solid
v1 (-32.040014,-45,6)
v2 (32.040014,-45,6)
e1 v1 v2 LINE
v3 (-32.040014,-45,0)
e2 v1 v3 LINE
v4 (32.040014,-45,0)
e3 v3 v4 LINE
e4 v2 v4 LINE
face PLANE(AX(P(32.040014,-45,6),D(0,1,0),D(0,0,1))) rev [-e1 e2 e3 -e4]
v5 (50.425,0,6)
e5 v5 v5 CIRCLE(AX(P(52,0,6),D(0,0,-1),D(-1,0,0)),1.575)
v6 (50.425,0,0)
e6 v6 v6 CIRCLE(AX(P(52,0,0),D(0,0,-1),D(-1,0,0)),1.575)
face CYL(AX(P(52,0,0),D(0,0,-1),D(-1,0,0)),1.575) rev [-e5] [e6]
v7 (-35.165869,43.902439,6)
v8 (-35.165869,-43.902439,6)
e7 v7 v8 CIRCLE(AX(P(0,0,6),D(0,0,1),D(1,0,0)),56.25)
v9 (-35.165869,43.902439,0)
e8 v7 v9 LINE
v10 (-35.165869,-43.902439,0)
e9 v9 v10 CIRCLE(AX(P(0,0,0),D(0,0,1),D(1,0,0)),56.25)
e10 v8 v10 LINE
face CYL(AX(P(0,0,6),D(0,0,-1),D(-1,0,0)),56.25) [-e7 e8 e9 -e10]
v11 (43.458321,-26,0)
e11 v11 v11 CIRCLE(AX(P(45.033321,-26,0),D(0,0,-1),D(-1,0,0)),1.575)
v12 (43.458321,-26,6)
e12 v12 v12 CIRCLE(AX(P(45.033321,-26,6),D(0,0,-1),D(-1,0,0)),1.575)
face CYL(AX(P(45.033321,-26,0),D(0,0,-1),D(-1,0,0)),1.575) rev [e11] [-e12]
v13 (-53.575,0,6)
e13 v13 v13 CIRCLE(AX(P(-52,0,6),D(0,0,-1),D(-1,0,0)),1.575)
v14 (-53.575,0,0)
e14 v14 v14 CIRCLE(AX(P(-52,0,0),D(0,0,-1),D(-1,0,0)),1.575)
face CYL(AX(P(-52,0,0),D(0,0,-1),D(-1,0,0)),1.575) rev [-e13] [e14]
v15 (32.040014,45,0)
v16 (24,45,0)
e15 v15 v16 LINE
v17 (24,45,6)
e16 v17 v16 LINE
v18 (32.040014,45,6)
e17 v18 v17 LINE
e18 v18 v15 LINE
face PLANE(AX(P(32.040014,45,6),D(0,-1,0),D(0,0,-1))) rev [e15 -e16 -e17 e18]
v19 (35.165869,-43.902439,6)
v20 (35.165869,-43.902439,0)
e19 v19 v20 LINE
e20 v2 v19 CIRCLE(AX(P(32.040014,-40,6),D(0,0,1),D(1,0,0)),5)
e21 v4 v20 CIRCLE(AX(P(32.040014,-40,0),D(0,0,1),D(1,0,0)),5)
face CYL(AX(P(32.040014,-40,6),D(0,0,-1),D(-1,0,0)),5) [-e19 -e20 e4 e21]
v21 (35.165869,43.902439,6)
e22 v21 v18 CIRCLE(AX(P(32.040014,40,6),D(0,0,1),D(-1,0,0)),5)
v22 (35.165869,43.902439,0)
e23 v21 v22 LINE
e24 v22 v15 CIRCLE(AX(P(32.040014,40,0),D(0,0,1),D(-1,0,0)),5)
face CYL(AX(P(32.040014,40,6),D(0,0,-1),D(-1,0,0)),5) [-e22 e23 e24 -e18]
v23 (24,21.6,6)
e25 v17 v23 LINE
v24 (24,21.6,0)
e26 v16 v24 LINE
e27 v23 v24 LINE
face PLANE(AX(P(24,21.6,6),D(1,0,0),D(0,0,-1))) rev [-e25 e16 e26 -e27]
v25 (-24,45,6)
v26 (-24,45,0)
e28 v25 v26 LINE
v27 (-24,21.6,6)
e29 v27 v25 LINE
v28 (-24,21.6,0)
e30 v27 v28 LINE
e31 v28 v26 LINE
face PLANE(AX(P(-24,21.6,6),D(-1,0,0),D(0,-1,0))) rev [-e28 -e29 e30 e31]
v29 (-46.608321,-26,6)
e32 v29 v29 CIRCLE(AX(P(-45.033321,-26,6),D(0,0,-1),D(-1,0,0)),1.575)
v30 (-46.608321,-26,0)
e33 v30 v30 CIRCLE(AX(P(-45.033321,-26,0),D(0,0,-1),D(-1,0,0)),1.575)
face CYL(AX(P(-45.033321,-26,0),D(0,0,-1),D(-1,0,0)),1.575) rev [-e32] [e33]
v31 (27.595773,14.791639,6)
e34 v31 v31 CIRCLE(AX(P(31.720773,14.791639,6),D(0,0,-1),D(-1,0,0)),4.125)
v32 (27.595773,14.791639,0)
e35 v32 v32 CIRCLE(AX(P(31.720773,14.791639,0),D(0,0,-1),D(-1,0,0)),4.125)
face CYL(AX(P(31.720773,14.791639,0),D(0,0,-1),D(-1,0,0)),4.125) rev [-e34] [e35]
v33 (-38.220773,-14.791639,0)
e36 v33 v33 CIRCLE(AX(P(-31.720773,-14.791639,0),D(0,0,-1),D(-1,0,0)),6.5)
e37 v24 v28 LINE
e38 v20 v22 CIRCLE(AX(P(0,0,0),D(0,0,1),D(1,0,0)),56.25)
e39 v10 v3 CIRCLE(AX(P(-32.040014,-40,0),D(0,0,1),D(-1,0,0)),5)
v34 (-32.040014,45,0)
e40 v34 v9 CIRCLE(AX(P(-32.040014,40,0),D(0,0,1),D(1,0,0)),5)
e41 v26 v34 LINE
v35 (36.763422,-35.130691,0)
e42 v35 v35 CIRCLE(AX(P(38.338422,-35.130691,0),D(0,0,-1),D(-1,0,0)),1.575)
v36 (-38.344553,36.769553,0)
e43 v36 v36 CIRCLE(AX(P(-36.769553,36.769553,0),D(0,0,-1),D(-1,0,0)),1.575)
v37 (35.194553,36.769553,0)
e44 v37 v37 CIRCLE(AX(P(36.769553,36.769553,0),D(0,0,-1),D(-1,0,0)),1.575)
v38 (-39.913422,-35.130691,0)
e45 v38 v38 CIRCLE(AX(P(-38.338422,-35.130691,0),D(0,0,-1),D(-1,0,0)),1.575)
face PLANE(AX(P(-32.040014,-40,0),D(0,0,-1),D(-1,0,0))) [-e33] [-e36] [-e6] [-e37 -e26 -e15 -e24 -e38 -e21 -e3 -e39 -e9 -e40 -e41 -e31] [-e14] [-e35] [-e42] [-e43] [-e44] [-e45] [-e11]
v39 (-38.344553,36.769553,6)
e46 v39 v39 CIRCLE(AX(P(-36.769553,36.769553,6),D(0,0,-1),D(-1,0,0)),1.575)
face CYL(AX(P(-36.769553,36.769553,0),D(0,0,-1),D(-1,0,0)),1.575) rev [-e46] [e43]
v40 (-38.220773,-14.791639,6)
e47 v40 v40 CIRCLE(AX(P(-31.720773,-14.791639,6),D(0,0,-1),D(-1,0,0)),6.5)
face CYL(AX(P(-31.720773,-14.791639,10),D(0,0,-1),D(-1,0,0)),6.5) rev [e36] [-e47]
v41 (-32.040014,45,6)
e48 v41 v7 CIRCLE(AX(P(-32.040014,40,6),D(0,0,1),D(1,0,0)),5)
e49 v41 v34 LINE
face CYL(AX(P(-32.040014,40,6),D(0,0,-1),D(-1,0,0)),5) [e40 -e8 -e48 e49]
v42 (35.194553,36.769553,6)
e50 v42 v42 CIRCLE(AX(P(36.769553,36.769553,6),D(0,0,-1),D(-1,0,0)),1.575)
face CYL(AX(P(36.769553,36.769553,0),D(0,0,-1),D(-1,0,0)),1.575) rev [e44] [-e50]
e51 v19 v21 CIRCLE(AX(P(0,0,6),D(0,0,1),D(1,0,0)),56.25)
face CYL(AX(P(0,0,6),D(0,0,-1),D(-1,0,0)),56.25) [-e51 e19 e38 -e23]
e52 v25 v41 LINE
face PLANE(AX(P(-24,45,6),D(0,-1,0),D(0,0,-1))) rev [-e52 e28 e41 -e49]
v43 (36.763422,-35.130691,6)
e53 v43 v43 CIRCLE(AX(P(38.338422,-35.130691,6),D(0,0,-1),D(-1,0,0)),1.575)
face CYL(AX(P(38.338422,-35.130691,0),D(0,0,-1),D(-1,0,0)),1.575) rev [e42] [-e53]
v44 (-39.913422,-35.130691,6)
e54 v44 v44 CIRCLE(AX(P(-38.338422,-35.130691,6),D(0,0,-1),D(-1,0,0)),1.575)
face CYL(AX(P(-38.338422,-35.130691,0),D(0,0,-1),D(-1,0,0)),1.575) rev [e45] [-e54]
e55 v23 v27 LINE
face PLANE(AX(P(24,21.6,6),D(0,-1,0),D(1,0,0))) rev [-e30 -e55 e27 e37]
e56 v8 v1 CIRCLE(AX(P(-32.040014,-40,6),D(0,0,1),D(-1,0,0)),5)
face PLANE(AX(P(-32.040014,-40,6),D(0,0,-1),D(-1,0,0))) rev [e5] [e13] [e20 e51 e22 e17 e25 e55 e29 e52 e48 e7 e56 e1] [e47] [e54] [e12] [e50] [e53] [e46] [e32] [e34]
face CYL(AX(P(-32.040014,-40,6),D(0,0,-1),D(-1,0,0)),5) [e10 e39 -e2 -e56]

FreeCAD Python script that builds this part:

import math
import FreeCAD as App
import Part
import Sketcher

doc = App.newDocument("Part")
params = doc.addObject("Spreadsheet::Sheet", "Params")
for row, (alias, value) in enumerate([
    ("sketch1_radius", "5 mm"),
    ("sketch1_width", "48 mm"),
    ("sketch1_radius2", "56.25 mm"),
    ("sketch1_height", "23.4 mm"),
    ("pad1_length", "6 mm"),
    ("sketch2_diameter", "3.15 mm"),
    ("hole_diameter", "3.15 mm"),
    ("hole_depth", "7.5 mm"),
    ("sketch3_diameter", "8.25 mm"),
    ("hole2_diameter", "8.25 mm"),
    ("hole2_depth", "18 mm"),
    ("sketch4_diameter", "13 mm"),
    ("pocket1_length", "10 mm"),
], start=1):
    params.set(f"A{row}", alias)
    params.set(f"B{row}", "=" + value)
    params.setAlias(f"B{row}", alias)

body = doc.addObject("PartDesign::Body", "Body")

sketch1 = doc.addObject("Sketcher::SketchObject", "Sketch")
body.addObject(sketch1)
sketch1.AttachmentSupport = (doc.XY_Plane, [""])
sketch1.MapMode = "FlatFace"
sketch1.addGeometry([
    Part.LineSegment(App.Vector(32, 45, 0), App.Vector(24, 45, 0)),
    Part.LineSegment(App.Vector(24, 45, 0), App.Vector(24, 21.6, 0)),
    Part.LineSegment(App.Vector(24, 21.6, 0), App.Vector(-24, 21.6, 0)),
    Part.LineSegment(App.Vector(-24, 21.6, 0), App.Vector(-24, 45, 0)),
    Part.LineSegment(App.Vector(-24, 45, 0), App.Vector(-32, 45, 0)),
    Part.ArcOfCircle(Part.Circle(App.Vector(-32, 40, 0), App.Vector(0, 0, 1), 5), math.radians(90), math.radians(129)),
    Part.ArcOfCircle(Part.Circle(App.Vector(0, 0, 0), App.Vector(0, 0, 1), 56.2), math.radians(129), math.radians(231)),
    Part.ArcOfCircle(Part.Circle(App.Vector(-32, -40, 0), App.Vector(0, 0, 1), 5), math.radians(-129), math.radians(-90)),
    Part.LineSegment(App.Vector(-32, -45, 0), App.Vector(32, -45, 0)),
    Part.ArcOfCircle(Part.Circle(App.Vector(32, -40, 0), App.Vector(0, 0, 1), 5), math.radians(-90), math.radians(-51)),
    Part.ArcOfCircle(Part.Circle(App.Vector(0, 0, 0), App.Vector(0, 0, 1), 56.2), math.radians(-51), math.radians(51)),
    Part.ArcOfCircle(Part.Circle(App.Vector(32, 40, 0), App.Vector(0, 0, 1), 5), math.radians(51), math.radians(90)),
], False)
sketch1.addConstraint([
    Sketcher.Constraint("Coincident", 0, 2, 1, 1),
    Sketcher.Constraint("Coincident", 1, 2, 2, 1),
    Sketcher.Constraint("Coincident", 2, 2, 3, 1),
    Sketcher.Constraint("Coincident", 3, 2, 4, 1),
    Sketcher.Constraint("Tangent", 4, 2, 5, 1),
    Sketcher.Constraint("Tangent", 5, 2, 6, 1),
    Sketcher.Constraint("Tangent", 6, 2, 7, 1),
    Sketcher.Constraint("Tangent", 7, 2, 8, 1),
    Sketcher.Constraint("Tangent", 8, 2, 9, 1),
    Sketcher.Constraint("Tangent", 9, 2, 10, 1),
    Sketcher.Constraint("Tangent", 10, 2, 11, 1),
    Sketcher.Constraint("Tangent", 11, 2, 0, 1),
    Sketcher.Constraint("Horizontal", 0),
    Sketcher.Constraint("Vertical", 1),
    Sketcher.Constraint("Horizontal", 2),
    Sketcher.Constraint("Vertical", 3),
    Sketcher.Constraint("Horizontal", 4),
    Sketcher.Constraint("Horizontal", 8),
    Sketcher.Constraint("Coincident", 6, 3, -1, 1),
    Sketcher.Constraint("Coincident", 10, 3, -1, 1),
    Sketcher.Constraint("Equal", 5, 7),
    Sketcher.Constraint("Equal", 7, 9),
    Sketcher.Constraint("Equal", 6, 10),
    Sketcher.Constraint("Equal", 9, 11),
    Sketcher.Constraint("Symmetric", 0, 2, 3, 2, -2),
    Sketcher.Constraint("Vertical", 5, 3, 7, 3),
    Sketcher.Constraint("Radius", 5, 5.0),
    Sketcher.Constraint("DistanceX", 2, 2, 2, 1, 48.0),
    Sketcher.Constraint("Radius", 6, 56.25),
    Sketcher.Constraint("DistanceY", 1, 2, 1, 1, 23.4),
    Sketcher.Constraint("DistanceY", -1, 1, 5, 3, 40.0),
])
sketch1.setExpression("Constraints[26]", "Params.sketch1_radius")
sketch1.setExpression("Constraints[27]", "Params.sketch1_width")
sketch1.setExpression("Constraints[28]", "Params.sketch1_radius2")
sketch1.setExpression("Constraints[29]", "Params.sketch1_height")
pad1 = doc.addObject("PartDesign::Pad", "Pad")
body.addObject(pad1)
pad1.Profile = sketch1
pad1.setExpression("Length", "Params.pad1_length")

sketch2 = doc.addObject("Sketcher::SketchObject", "Sketch001")
body.addObject(sketch2)
sketch2.AttachmentSupport = (doc.XY_Plane, [""])
sketch2.MapMode = "FlatFace"
sketch2.addGeometry([
    Part.Circle(App.Vector(-38.3, -35.1, 0), App.Vector(0, 0, 1), 1.6),
    Part.Circle(App.Vector(-52, 0, 0), App.Vector(0, 0, 1), 1.6),
    Part.Circle(App.Vector(52, 0, 0), App.Vector(0, 0, 1), 1.6),
    Part.Circle(App.Vector(36.8, 36.8, 0), App.Vector(0, 0, 1), 1.6),
    Part.Circle(App.Vector(45, -26, 0), App.Vector(0, 0, 1), 1.6),
    Part.Circle(App.Vector(-36.8, 36.8, 0), App.Vector(0, 0, 1), 1.6),
    Part.Circle(App.Vector(-45, -26, 0), App.Vector(0, 0, 1), 1.6),
    Part.Circle(App.Vector(38.3, -35.1, 0), App.Vector(0, 0, 1), 1.6),
], False)
sketch2.addConstraint([
    Sketcher.Constraint("Equal", 0, 1),
    Sketcher.Constraint("Equal", 1, 2),
    Sketcher.Constraint("Equal", 2, 3),
    Sketcher.Constraint("Equal", 3, 4),
    Sketcher.Constraint("Equal", 4, 5),
    Sketcher.Constraint("Equal", 5, 6),
    Sketcher.Constraint("Equal", 6, 7),
    Sketcher.Constraint("Symmetric", 1, 3, 2, 3, -1, 1),
    Sketcher.Constraint("Symmetric", 3, 3, 5, 3, -2),
    Sketcher.Constraint("Symmetric", 4, 3, 6, 3, -2),
    Sketcher.Constraint("Symmetric", 0, 3, 7, 3, -2),
    Sketcher.Constraint("PointOnObject", 1, 3, -1),
    Sketcher.Constraint("Diameter", 0, 3.15),
    Sketcher.Constraint("DistanceX", 1, 3, -1, 1, 52.0),
    Sketcher.Constraint("DistanceY", 4, 3, -1, 1, 26.0),
    Sketcher.Constraint("DistanceX", 6, 3, 0, 3, 6.694899),
    Sketcher.Constraint("DistanceX", 0, 3, -1, 1, 38.338422),
    Sketcher.Constraint("DistanceY", 0, 3, -1, 1, 35.130691),
    Sketcher.Constraint("DistanceX", 3, 3, 4, 3, 8.263768),
    Sketcher.Constraint("DistanceY", -1, 1, 3, 3, 36.769553),
])
sketch2.setExpression("Constraints[12]", "Params.sketch2_diameter")
doc.recompute()
hole = doc.addObject("PartDesign::Hole", "Hole")
body.addObject(hole)
hole.Profile = sketch2
hole.ThreadType = "None"
hole.setExpression("Diameter", "Params.hole_diameter")
hole.DepthType = "Dimension"
hole.setExpression("Depth", "Params.hole_depth")
hole.DrillPoint = "Angled"
hole.DrillPointAngle = 118
hole.Reversed = True

sketch3 = doc.addObject("Sketcher::SketchObject", "Sketch002")
body.addObject(sketch3)
sketch3.AttachmentSupport = (doc.XY_Plane, [""])
sketch3.MapMode = "FlatFace"
sketch3.addGeometry(Part.Circle(App.Vector(31.7, 14.8, 0), App.Vector(0, 0, 1), 4.1), False)
sketch3.addConstraint([
    Sketcher.Constraint("Diameter", 0, 8.25),
    Sketcher.Constraint("DistanceY", -1, 1, 0, 3, 14.791639),
    Sketcher.Constraint("DistanceX", -1, 1, 0, 3, 31.720773),
])
sketch3.setExpression("Constraints[0]", "Params.sketch3_diameter")
doc.recompute()
hole2 = doc.addObject("PartDesign::Hole", "Hole001")
body.addObject(hole2)
hole2.Profile = sketch3
hole2.ThreadType = "None"
hole2.setExpression("Diameter", "Params.hole2_diameter")
hole2.DepthType = "Dimension"
hole2.setExpression("Depth", "Params.hole2_depth")
hole2.DrillPoint = "Angled"
hole2.DrillPointAngle = 118
hole2.Reversed = True

sketch4 = doc.addObject("Sketcher::SketchObject", "Sketch003")
body.addObject(sketch4)
sketch4.AttachmentSupport = (doc.XY_Plane, [""])
sketch4.MapMode = "FlatFace"
sketch4.addGeometry(Part.Circle(App.Vector(-32, -15, 0), App.Vector(0, 0, 1), 6), False)
sketch4.addConstraint([
    Sketcher.Constraint("Diameter", 0, 13.0),
    Sketcher.Constraint("DistanceY", 0, 3, -1, 1, 14.791639),
    Sketcher.Constraint("DistanceX", 0, 3, -1, 1, 31.720773),
])
sketch4.setExpression("Constraints[0]", "Params.sketch4_diameter")
pocket1 = doc.addObject("PartDesign::Pocket", "Pocket")
body.addObject(pocket1)
pocket1.Profile = sketch4
pocket1.setExpression("Length", "Params.pocket1_length")
pocket1.Reversed = True

doc.recompute()
